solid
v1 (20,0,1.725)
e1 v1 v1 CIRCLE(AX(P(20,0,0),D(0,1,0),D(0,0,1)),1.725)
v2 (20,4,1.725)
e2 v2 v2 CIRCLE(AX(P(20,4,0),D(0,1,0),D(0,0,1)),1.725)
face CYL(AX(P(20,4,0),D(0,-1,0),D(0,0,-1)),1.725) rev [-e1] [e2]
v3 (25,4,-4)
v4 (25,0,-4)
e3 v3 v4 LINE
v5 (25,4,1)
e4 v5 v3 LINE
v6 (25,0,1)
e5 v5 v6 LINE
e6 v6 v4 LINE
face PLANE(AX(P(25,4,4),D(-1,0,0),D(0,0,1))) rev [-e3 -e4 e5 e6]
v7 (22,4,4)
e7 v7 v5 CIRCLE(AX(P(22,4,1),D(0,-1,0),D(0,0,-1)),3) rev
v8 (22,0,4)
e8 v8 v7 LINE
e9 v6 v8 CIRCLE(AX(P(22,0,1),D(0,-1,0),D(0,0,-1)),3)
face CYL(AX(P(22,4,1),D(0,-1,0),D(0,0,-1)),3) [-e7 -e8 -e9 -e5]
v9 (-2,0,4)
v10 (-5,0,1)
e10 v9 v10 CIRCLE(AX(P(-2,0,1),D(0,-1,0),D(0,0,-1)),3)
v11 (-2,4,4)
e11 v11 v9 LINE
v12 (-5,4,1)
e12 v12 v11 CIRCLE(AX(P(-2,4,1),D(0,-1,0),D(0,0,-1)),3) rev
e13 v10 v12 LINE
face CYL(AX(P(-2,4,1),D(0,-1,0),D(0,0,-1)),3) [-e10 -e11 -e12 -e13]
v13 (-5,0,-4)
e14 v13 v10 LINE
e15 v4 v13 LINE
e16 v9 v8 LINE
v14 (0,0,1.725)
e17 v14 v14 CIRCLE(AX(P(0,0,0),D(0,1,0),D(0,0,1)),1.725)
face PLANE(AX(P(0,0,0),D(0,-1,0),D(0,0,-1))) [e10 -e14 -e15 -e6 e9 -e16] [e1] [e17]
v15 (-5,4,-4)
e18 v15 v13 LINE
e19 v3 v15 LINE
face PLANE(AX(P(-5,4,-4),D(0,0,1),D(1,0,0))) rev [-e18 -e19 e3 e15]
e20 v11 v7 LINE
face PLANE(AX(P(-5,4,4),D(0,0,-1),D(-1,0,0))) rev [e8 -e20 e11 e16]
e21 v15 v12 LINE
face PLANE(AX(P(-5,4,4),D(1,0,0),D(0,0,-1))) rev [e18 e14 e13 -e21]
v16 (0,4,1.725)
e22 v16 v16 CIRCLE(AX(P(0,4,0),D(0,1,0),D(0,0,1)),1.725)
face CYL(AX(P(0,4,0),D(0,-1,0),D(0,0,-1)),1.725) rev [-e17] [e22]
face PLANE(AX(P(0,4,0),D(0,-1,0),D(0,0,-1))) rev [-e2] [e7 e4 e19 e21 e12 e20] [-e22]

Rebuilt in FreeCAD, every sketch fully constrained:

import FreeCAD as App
import Part
import Sketcher
Q = App.Units.Quantity


def edges_at(feature, points):
    """Names of the edges that pass closest to the given points."""
    edges = feature.Shape.Edges
    near = lambda p: min(range(len(edges)), key=lambda i: edges[i].distToShape(Part.Vertex(*p))[0])
    return sorted({f"Edge{near(p) + 1}" for p in points})

doc = App.newDocument("Part")
body = doc.addObject("PartDesign::Body", "Body")

sketch1 = body.newObject("Sketcher::SketchObject", "Sketch")
sketch1.AttachmentSupport = (doc.getObject("XZ_Plane"), [""])
sketch1.MapMode = "FlatFace"
sketch1.addGeometry([
    Part.LineSegment(App.Vector(-5, -4, 0), App.Vector(-5, 4, 0)),
    Part.LineSegment(App.Vector(-5, 4, 0), App.Vector(25, 4, 0)),
    Part.LineSegment(App.Vector(25, 4, 0), App.Vector(25, -4, 0)),
    Part.LineSegment(App.Vector(25, -4, 0), App.Vector(-5, -4, 0)),
    Part.Circle(App.Vector(0, 0, 0), App.Vector(0, 0, 1), 1.7),
    Part.Circle(App.Vector(20, 0, 0), App.Vector(0, 0, 1), 1.7),
], False)
sketch1.addConstraint([
    Sketcher.Constraint("Coincident", 0, 2, 1, 1),
    Sketcher.Constraint("Coincident", 1, 2, 2, 1),
    Sketcher.Constraint("Coincident", 2, 2, 3, 1),
    Sketcher.Constraint("Coincident", 3, 2, 0, 1),
    Sketcher.Constraint("Vertical", 0),
    Sketcher.Constraint("Horizontal", 1),
    Sketcher.Constraint("Vertical", 2),
    Sketcher.Constraint("Horizontal", 3),
    Sketcher.Constraint("Coincident", 4, 3, -1, 1),
    Sketcher.Constraint("Equal", 4, 5),
    Sketcher.Constraint("PointOnObject", 5, 3, -1),
    Sketcher.Constraint("Diameter", 4, Q("3.45 mm")),
    Sketcher.Constraint("DistanceX", 1, 1, 1, 2, Q("30 mm")),
    Sketcher.Constraint("DistanceY", 0, 1, 0, 2, Q("8 mm")),
    Sketcher.Constraint("DistanceX", -1, 1, 5, 3, Q("20 mm")),
    Sketcher.Constraint("DistanceX", 0, 2, -1, 1, Q("5 mm")),
    Sketcher.Constraint("DistanceY", -1, 1, 0, 2, Q("4 mm")),
])
pad1 = body.newObject("PartDesign::Pad", "Pad")
pad1.Profile = sketch1
pad1.Length = 4
pad1.Reversed = True
doc.recompute()

fillet = body.newObject("PartDesign::Fillet", "Fillet")
fillet.Base = (pad1, edges_at(pad1, [(25, 2, 4), (-5, 2, 4)]))
fillet.Radius = 3

doc.recompute()
